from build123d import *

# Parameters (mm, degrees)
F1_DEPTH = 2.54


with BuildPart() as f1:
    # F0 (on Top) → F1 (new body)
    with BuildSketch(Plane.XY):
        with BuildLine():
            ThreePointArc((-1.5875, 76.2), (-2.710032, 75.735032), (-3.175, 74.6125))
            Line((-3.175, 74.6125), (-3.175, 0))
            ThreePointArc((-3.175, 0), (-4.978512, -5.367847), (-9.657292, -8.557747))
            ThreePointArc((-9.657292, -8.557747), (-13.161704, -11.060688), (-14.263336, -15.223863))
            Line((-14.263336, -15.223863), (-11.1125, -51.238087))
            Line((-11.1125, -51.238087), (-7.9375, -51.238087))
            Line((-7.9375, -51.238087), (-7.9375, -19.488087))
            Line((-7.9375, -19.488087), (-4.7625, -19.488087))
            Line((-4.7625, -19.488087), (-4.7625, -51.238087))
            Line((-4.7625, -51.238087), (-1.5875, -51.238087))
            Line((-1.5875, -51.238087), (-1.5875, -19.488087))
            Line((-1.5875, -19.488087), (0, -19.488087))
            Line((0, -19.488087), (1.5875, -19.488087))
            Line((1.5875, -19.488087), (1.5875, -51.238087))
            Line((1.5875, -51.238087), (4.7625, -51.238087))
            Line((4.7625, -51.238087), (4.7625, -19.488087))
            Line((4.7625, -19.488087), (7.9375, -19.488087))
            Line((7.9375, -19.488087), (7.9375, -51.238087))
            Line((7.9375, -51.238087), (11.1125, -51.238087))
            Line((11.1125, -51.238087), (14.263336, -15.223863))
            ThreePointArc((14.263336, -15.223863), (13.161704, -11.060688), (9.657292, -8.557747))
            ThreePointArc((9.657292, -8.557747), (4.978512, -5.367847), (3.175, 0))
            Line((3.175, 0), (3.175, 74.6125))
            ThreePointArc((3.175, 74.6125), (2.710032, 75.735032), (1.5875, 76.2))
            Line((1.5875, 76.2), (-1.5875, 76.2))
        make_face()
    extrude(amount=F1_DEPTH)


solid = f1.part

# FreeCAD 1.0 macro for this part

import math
import FreeCAD as App
import Part
import Sketcher
from FreeCAD import Vector
Q = App.Units.Quantity

doc = App.newDocument("Part")
body = doc.addObject("PartDesign::Body", "Body")

# Sketch on XY plane
sketch1 = body.newObject("Sketcher::SketchObject", "Sketch")
sketch1.AttachmentSupport = (doc.getObject("XY_Plane"), [""])
sketch1.MapMode = "FlatFace"
sketch1.addGeometry([
    Part.ArcOfCircle(Part.Circle(Vector(-1.6, 74.6, 0), Vector(0, 0, 1), 1.6), math.radians(90), math.radians(180)),  # 0
    Part.LineSegment(Vector(-3.2, 74.6, 0), Vector(-3.2, 0, 0)),  # 1
    Part.ArcOfCircle(Part.Circle(Vector(-12.1, 0, 0), Vector(0, 0, 1), 8.9), math.radians(-74), math.radians(0)),  # 2
    Part.ArcOfCircle(Part.Circle(Vector(-7.9, -14.7, 0), Vector(0, 0, 1), 6.3), math.radians(106), math.radians(185)),  # 3
    Part.LineSegment(Vector(-14.3, -15.2, 0), Vector(-11.1, -51.2, 0)),  # 4
    Part.LineSegment(Vector(-11.1, -51.2, 0), Vector(-7.9, -51.2, 0)),  # 5
    Part.LineSegment(Vector(-7.9, -51.2, 0), Vector(-7.9, -19.5, 0)),  # 6
    Part.LineSegment(Vector(-7.9, -19.5, 0), Vector(-4.8, -19.5, 0)),  # 7
    Part.LineSegment(Vector(-4.8, -19.5, 0), Vector(-4.8, -51.2, 0)),  # 8
    Part.LineSegment(Vector(-4.8, -51.2, 0), Vector(-1.6, -51.2, 0)),  # 9
    Part.LineSegment(Vector(-1.6, -51.2, 0), Vector(-1.6, -19.5, 0)),  # 10
    Part.LineSegment(Vector(-1.6, -19.5, 0), Vector(1.6, -19.5, 0)),  # 11
    Part.LineSegment(Vector(1.6, -19.5, 0), Vector(1.6, -51.2, 0)),  # 12
    Part.LineSegment(Vector(1.6, -51.2, 0), Vector(4.8, -51.2, 0)),  # 13
    Part.LineSegment(Vector(4.8, -51.2, 0), Vector(4.8, -19.5, 0)),  # 14
    Part.LineSegment(Vector(4.8, -19.5, 0), Vector(7.9, -19.5, 0)),  # 15
    Part.LineSegment(Vector(7.9, -19.5, 0), Vector(7.9, -51.2, 0)),  # 16
    Part.LineSegment(Vector(7.9, -51.2, 0), Vector(11.1, -51.2, 0)),  # 17
    Part.LineSegment(Vector(11.1, -51.2, 0), Vector(14.3, -15.2, 0)),  # 18
    Part.ArcOfCircle(Part.Circle(Vector(7.9, -14.7, 0), Vector(0, 0, 1), 6.3), math.radians(-5), math.radians(74)),  # 19
    Part.ArcOfCircle(Part.Circle(Vector(12.1, 0, 0), Vector(0, 0, 1), 8.9), math.radians(-180), math.radians(-106)),  # 20
    Part.LineSegment(Vector(3.2, 0, 0), Vector(3.2, 74.6, 0)),  # 21
    Part.ArcOfCircle(Part.Circle(Vector(1.6, 74.6, 0), Vector(0, 0, 1), 1.6), math.radians(0), math.radians(90)),  # 22
    Part.LineSegment(Vector(1.6, 76.2, 0), Vector(-1.6, 76.2, 0)),  # 23
], False)
sketch1.addConstraint([
    Sketcher.Constraint("Tangent", 0, 2, 1, 1),
    Sketcher.Constraint("Tangent", 1, 2, 2, 2),
    Sketcher.Constraint("Tangent", 2, 1, 3, 1),
    Sketcher.Constraint("Tangent", 3, 2, 4, 1),
    Sketcher.Constraint("Coincident", 4, 2, 5, 1),
    Sketcher.Constraint("Coincident", 5, 2, 6, 1),
    Sketcher.Constraint("Coincident", 6, 2, 7, 1),
    Sketcher.Constraint("Coincident", 7, 2, 8, 1),
    Sketcher.Constraint("Coincident", 8, 2, 9, 1),
    Sketcher.Constraint("Coincident", 9, 2, 10, 1),
    Sketcher.Constraint("Coincident", 10, 2, 11, 1),
    Sketcher.Constraint("Coincident", 11, 2, 12, 1),
    Sketcher.Constraint("Coincident", 12, 2, 13, 1),
    Sketcher.Constraint("Coincident", 13, 2, 14, 1),
    Sketcher.Constraint("Coincident", 14, 2, 15, 1),
    Sketcher.Constraint("Coincident", 15, 2, 16, 1),
    Sketcher.Constraint("Coincident", 16, 2, 17, 1),
    Sketcher.Constraint("Coincident", 17, 2, 18, 1),
    Sketcher.Constraint("Tangent", 18, 2, 19, 1),
    Sketcher.Constraint("Tangent", 19, 2, 20, 2),
    Sketcher.Constraint("Tangent", 20, 1, 21, 1),
    Sketcher.Constraint("Tangent", 21, 2, 22, 1),
    Sketcher.Constraint("Tangent", 22, 2, 23, 1),
    Sketcher.Constraint("Tangent", 23, 2, 0, 1),
    Sketcher.Constraint("Vertical", 1),
    Sketcher.Constraint("Horizontal", 5),
    Sketcher.Constraint("Vertical", 6),
    Sketcher.Constraint("Horizontal", 7),
    Sketcher.Constraint("Vertical", 8),
    Sketcher.Constraint("Horizontal", 9),
    Sketcher.Constraint("Vertical", 10),
    Sketcher.Constraint("Horizontal", 11),
    Sketcher.Constraint("Vertical", 12),
    Sketcher.Constraint("Horizontal", 13),
    Sketcher.Constraint("Vertical", 14),
    Sketcher.Constraint("Horizontal", 15),
    Sketcher.Constraint("Vertical", 16),
    Sketcher.Constraint("Horizontal", 17),
    Sketcher.Constraint("Vertical", 21),
    Sketcher.Constraint("Horizontal", 23),
    Sketcher.Constraint("Equal", 3, 19),
    Sketcher.Constraint("Equal", 2, 20),
    Sketcher.Constraint("Equal", 0, 22),
    Sketcher.Constraint("Symmetric", 2, 3, 20, 3, -1, 1),
    Sketcher.Constraint("Symmetric", 3, 3, 19, 3, -2),
    Sketcher.Constraint("Symmetric", 9, 2, 12, 2, -2),
    Sketcher.Constraint("Symmetric", 7, 2, 14, 2, -2),
    Sketcher.Constraint("Symmetric", 5, 2, 16, 2, -2),
    Sketcher.Constraint("Horizontal", 5, 2, 8, 2),
    Sketcher.Constraint("Horizontal", 7, 2, 10, 2),
    Sketcher.Constraint("Horizontal", 3, 2, 18, 2),
    Sketcher.Constraint("Vertical", 3, 3, 5, 2),
    Sketcher.Constraint("Vertical", 0, 3, 9, 2),
    Sketcher.Constraint("Equal", 5, 7),
    Sketcher.Constraint("Equal", 7, 9),
    Sketcher.Constraint("Equal", 9, 11),
    Sketcher.Constraint("Radius", 2, Q("0.35 in")),
    Sketcher.Constraint("Radius", 3, Q("0.25 in")),
    Sketcher.Constraint("DistanceY", -1, 1, 22, 2, Q("3 in")),
    Sketcher.Constraint("Angle", 4, Q("-85.000001 deg")),
    Sketcher.Constraint("Radius", 0, Q("0.0625 in")),
    Sketcher.Constraint("DistanceY", 6, 1, 6, 2, Q("1.25 in")),
    Sketcher.Constraint("DistanceX", 0, 2, 20, 3, Q("0.6 in")),
])
pad1 = body.newObject("PartDesign::Pad", "Pad")
pad1.Profile = sketch1
pad1.Length = Q("0.1 in")

doc.recompute()
